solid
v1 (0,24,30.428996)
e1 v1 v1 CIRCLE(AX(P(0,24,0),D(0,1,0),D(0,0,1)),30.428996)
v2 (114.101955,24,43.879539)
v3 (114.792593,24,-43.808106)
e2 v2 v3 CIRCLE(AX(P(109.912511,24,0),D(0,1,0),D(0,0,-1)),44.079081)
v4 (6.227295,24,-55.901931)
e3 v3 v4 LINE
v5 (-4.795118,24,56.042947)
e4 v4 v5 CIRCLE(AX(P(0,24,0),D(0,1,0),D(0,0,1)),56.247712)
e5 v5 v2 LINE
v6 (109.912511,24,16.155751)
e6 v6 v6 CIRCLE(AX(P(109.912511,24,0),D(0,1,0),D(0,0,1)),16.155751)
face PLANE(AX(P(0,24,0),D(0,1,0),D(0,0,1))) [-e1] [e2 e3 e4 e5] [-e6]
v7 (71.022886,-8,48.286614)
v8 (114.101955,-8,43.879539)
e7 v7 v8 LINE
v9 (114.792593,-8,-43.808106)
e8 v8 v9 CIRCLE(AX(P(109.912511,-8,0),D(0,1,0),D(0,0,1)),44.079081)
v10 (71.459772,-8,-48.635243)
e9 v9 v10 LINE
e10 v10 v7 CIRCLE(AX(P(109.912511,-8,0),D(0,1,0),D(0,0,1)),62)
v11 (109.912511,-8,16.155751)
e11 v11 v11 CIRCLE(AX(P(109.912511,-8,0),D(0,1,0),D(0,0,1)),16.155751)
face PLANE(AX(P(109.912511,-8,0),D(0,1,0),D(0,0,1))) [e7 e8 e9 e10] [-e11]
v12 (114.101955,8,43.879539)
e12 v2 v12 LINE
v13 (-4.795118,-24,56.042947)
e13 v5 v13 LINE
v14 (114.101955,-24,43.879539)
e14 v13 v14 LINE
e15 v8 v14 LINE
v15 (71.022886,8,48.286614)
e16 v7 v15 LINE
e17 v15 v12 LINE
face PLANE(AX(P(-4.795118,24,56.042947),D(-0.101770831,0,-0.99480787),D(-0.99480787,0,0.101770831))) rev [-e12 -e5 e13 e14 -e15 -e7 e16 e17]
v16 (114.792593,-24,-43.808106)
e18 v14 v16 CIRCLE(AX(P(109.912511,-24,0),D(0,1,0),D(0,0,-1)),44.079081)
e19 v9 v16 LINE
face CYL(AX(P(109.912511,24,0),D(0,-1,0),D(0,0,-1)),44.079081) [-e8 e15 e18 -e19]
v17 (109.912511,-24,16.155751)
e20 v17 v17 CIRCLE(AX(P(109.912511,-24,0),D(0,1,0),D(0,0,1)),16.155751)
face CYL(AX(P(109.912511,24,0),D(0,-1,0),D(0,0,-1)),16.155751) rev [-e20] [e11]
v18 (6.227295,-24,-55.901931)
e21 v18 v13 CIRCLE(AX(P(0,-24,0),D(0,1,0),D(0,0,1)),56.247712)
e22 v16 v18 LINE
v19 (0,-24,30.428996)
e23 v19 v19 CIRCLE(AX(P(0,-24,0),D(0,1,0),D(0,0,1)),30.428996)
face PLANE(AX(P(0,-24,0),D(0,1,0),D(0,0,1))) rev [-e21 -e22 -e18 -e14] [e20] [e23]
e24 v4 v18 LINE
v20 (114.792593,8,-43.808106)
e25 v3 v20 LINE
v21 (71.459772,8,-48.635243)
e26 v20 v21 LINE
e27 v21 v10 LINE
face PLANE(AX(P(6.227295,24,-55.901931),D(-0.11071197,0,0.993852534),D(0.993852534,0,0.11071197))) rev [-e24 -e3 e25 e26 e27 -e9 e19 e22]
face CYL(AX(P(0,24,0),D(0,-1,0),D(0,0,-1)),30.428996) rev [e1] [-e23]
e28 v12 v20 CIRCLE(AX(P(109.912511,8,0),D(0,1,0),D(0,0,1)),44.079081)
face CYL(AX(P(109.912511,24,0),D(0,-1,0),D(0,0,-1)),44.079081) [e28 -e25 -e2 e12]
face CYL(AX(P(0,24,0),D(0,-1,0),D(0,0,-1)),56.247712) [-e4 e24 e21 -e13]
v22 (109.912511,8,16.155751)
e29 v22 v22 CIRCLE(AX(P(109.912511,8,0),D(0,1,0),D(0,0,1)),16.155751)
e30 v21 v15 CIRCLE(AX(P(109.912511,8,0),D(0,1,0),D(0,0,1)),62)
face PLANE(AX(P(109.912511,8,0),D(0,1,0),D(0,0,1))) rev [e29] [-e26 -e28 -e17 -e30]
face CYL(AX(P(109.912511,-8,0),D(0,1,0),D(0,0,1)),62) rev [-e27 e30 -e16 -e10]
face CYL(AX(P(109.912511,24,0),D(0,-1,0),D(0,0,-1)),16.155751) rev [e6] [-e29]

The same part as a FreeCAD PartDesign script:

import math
import FreeCAD as App
import Part
import Sketcher
from FreeCAD import Vector

doc = App.newDocument("Part")
body = doc.addObject("PartDesign::Body", "Body")

# Sketch on XZ plane
sketch1 = body.newObject("Sketcher::SketchObject", "Sketch")
sketch1.AttachmentSupport = (doc.getObject("XZ_Plane"), [""])
sketch1.MapMode = "FlatFace"
sketch1.addGeometry(Part.LineSegment(Vector(115, -44, 0), Vector(6, -56, 0)), False)
sketch1.addGeometry(Part.ArcOfCircle(Part.Circle(Vector(0, 0, 0), Vector(0, 0, 1), 56), math.radians(95), math.radians(276)), False)
sketch1.addGeometry(Part.LineSegment(Vector(-5, 56, 0), Vector(114, 44, 0)), False)
sketch1.addGeometry(Part.ArcOfCircle(Part.Circle(Vector(110, 0, 0), Vector(0, 0, 1), 44), math.radians(-84), math.radians(85)), False)
sketch1.addGeometry(Part.Circle(Vector(110, 0, 0), Vector(0, 0, 1), 16), False)
sketch1.addGeometry(Part.Circle(Vector(0, 0, 0), Vector(0, 0, 1), 30), False)
sketch1.addConstraint(Sketcher.Constraint("Tangent", 0, 2, 1, 2))
sketch1.addConstraint(Sketcher.Constraint("Coincident", 1, 1, 2, 1))
sketch1.addConstraint(Sketcher.Constraint("Coincident", 2, 2, 3, 2))
sketch1.addConstraint(Sketcher.Constraint("Tangent", 3, 1, 0, 1))
sketch1.addConstraint(Sketcher.Constraint("Coincident", 1, 3, -1, 1))
sketch1.addConstraint(Sketcher.Constraint("Coincident", 5, 3, -1, 1))
sketch1.addConstraint(Sketcher.Constraint("Coincident", 4, 3, 3, 3))
sketch1.addConstraint(Sketcher.Constraint("PointOnObject", 3, 3, -1))
sketch1.addConstraint(Sketcher.Constraint("Radius", 1, 56.247712))
sketch1.addConstraint(Sketcher.Constraint("Radius", 3, 44.079081))
sketch1.addConstraint(Sketcher.Constraint("Diameter", 4, 32.311503))
sketch1.addConstraint(Sketcher.Constraint("Diameter", 5, 60.857993))
sketch1.addConstraint(Sketcher.Constraint("DistanceX", 0, 2, 3, 1, 108.565298))
sketch1.addConstraint(Sketcher.Constraint("DistanceX", 1, 1, -1, 1, 4.795118))
sketch1.addConstraint(Sketcher.Constraint("DistanceY", -1, 1, 2, 2, 43.879539))
pad1 = body.newObject("PartDesign::Pad", "Pad")
pad1.Profile = sketch1
pad1.Length = 48
pad1.Midplane = True

# Sketch on XZ plane
sketch2 = body.newObject("Sketcher::SketchObject", "Sketch001")
sketch2.AttachmentSupport = (doc.getObject("XZ_Plane"), [""])
sketch2.MapMode = "FlatFace"
sketch2.addGeometry(Part.Circle(Vector(110, 0, 0), Vector(0, 0, 1), 62), False)
sketch2.addConstraint(Sketcher.Constraint("PointOnObject", 0, 3, -1))
sketch2.addConstraint(Sketcher.Constraint("Diameter", 0, 124.0))
sketch2.addConstraint(Sketcher.Constraint("DistanceX", -1, 1, 0, 3, 109.912511))
pocket1 = body.newObject("PartDesign::Pocket", "Pocket")
pocket1.Profile = sketch2
pocket1.Length = 16
pocket1.Midplane = True

doc.recompute()
